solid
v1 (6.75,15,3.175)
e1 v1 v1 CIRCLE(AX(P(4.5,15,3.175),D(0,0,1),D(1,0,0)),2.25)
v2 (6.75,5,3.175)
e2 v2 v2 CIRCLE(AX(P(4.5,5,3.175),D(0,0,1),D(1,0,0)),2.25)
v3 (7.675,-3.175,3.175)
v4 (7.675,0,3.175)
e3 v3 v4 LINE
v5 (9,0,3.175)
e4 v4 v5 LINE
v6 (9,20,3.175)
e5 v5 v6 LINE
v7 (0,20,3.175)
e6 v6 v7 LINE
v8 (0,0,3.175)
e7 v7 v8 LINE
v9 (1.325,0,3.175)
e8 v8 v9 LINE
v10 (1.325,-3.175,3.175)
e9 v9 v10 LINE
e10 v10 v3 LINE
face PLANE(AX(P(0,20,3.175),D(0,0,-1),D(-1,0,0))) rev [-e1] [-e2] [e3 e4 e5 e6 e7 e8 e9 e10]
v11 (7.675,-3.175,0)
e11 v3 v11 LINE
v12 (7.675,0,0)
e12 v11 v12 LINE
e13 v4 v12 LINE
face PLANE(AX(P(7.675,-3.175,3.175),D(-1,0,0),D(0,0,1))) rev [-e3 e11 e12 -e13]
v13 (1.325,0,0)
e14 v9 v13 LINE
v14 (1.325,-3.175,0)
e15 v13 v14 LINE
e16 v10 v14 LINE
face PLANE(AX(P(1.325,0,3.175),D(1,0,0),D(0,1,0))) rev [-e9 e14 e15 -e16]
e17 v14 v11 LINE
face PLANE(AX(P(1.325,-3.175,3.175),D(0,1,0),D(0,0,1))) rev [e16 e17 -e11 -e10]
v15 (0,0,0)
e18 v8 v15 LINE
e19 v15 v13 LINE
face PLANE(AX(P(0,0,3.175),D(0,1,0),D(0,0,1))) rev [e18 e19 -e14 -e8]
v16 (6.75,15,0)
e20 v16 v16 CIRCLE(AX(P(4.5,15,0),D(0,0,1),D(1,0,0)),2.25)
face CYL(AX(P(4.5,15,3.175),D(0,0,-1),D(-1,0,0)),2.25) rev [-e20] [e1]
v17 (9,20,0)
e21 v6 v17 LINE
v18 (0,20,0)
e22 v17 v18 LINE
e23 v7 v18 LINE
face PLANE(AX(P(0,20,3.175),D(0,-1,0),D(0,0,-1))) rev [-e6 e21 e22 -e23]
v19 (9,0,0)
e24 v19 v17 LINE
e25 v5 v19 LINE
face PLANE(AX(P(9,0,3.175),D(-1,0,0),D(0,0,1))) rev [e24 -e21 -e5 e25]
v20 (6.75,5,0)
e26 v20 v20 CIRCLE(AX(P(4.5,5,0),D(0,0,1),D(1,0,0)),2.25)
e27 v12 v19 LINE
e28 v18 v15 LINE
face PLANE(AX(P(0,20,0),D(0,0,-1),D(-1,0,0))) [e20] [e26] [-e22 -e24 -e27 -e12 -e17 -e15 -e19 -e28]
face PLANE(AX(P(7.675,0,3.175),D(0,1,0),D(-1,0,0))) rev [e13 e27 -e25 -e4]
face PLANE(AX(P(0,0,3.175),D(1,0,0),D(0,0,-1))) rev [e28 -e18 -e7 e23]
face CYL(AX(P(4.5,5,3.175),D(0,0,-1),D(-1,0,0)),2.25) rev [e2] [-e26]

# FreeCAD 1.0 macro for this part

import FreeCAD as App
import Part
import Sketcher

V = App.Vector


def add_polygon(sketch, points):
    """Adds a closed chain of lines whose ends are joined by coincident constraints."""
    first, n = sketch.GeometryCount, len(points)
    for a, b in zip(points, points[1:] + points[:1]):
        sketch.addGeometry(Part.LineSegment(App.Vector(*a, 0), App.Vector(*b, 0)), False)
    for i in range(n):
        sketch.addConstraint(Sketcher.Constraint("Coincident", first + i, 2, first + (i + 1) % n, 1))

doc = App.newDocument("Part")
body = doc.addObject("PartDesign::Body", "Body")

# Sketch on XY plane
sketch1 = body.newObject("Sketcher::SketchObject", "Sketch")
sketch1.AttachmentSupport = (doc.getObject("XY_Plane"), [""])
sketch1.MapMode = "FlatFace"
add_polygon(sketch1, [(0, 0), (1.3, 0), (1.3, -3.2), (7.7, -3.2), (7.7, 0), (9, 0), (9, 20), (0, 20)])  # lines 0-7
sketch1.addGeometry(Part.Circle(V(4.5, 5, 0), V(0, 0, 1), 2.2), False)  # 8
sketch1.addGeometry(Part.Circle(V(4.5, 15, 0), V(0, 0, 1), 2.2), False)  # 9
sketch1.addConstraint(Sketcher.Constraint("Horizontal", 0))
sketch1.addConstraint(Sketcher.Constraint("Vertical", 1))
sketch1.addConstraint(Sketcher.Constraint("Horizontal", 2))
sketch1.addConstraint(Sketcher.Constraint("Vertical", 3))
sketch1.addConstraint(Sketcher.Constraint("Horizontal", 4))
sketch1.addConstraint(Sketcher.Constraint("Vertical", 5))
sketch1.addConstraint(Sketcher.Constraint("Horizontal", 6))
sketch1.addConstraint(Sketcher.Constraint("Vertical", 7))
sketch1.addConstraint(Sketcher.Constraint("Coincident", 7, 2, -1, 1))
sketch1.addConstraint(Sketcher.Constraint("Equal", 8, 9))
sketch1.addConstraint(Sketcher.Constraint("PointOnObject", 3, 2, -1))
sketch1.addConstraint(Sketcher.Constraint("Vertical", 8, 3, 9, 3))
sketch1.addConstraint(Sketcher.Constraint("Equal", 0, 4))
sketch1.addConstraint(Sketcher.Constraint("Diameter", 8, 4.5))
sketch1.addConstraint(Sketcher.Constraint("DistanceX", 6, 2, 6, 1, 9.0))
sketch1.addConstraint(Sketcher.Constraint("DistanceY", 5, 1, 5, 2, 20.0))
sketch1.addConstraint(Sketcher.Constraint("DistanceY", -1, 1, 8, 3, 5.0))
sketch1.addConstraint(Sketcher.Constraint("DistanceY", -1, 1, 9, 3, 15.0))
sketch1.addConstraint(Sketcher.Constraint("DistanceX", 2, 1, 2, 2, 6.35))
sketch1.addConstraint(Sketcher.Constraint("DistanceX", -1, 1, 8, 3, 4.5))
sketch1.addConstraint(Sketcher.Constraint("DistanceY", 1, 2, 1, 1, 3.175))
pad1 = body.newObject("PartDesign::Pad", "Pad")
pad1.Profile = sketch1
pad1.Length = 3.175

doc.recompute()
